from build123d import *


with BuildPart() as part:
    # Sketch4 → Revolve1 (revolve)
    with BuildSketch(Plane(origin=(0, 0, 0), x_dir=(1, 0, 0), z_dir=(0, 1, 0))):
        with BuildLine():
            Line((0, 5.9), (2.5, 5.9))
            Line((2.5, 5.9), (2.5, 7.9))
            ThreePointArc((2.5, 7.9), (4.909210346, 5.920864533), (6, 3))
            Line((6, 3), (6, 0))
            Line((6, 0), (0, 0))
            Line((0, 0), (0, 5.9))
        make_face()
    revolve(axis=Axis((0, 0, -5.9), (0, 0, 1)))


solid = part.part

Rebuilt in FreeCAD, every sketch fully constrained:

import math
import FreeCAD as App
import Part
import Sketcher
Q = App.Units.Quantity

doc = App.newDocument("Part")
body = doc.addObject("PartDesign::Body", "Body")

sketch1 = body.newObject("Sketcher::SketchObject", "Sketch")
sketch1.AttachmentSupport = (doc.getObject("XZ_Plane"), [""])
sketch1.MapMode = "FlatFace"
sketch1.addGeometry([
    Part.LineSegment(App.Vector(2.5, -5.9, 0), App.Vector(0, -5.9, 0)),
    Part.LineSegment(App.Vector(0, -5.9, 0), App.Vector(0, 0, 0)),
    Part.LineSegment(App.Vector(0, 0, 0), App.Vector(6, 0, 0)),
    Part.LineSegment(App.Vector(6, 0, 0), App.Vector(6, -3, 0)),
    Part.ArcOfCircle(Part.Circle(App.Vector(0.02681, -2.433435, 0), App.Vector(0, 0, 1), 6), math.radians(-65.656989), math.radians(-5.418366)),
    Part.LineSegment(App.Vector(2.5, -7.9, 0), App.Vector(2.5, -5.9, 0)),
], False)
sketch1.addConstraint([
    Sketcher.Constraint("Coincident", 0, 2, 1, 1),
    Sketcher.Constraint("Coincident", 1, 2, 2, 1),
    Sketcher.Constraint("Coincident", 2, 2, 3, 1),
    Sketcher.Constraint("Coincident", 3, 2, 4, 2),
    Sketcher.Constraint("Coincident", 4, 1, 5, 1),
    Sketcher.Constraint("Coincident", 5, 2, 0, 1),
    Sketcher.Constraint("Horizontal", 0),
    Sketcher.Constraint("Vertical", 1),
    Sketcher.Constraint("Horizontal", 2),
    Sketcher.Constraint("Vertical", 3),
    Sketcher.Constraint("Vertical", 5),
    Sketcher.Constraint("Coincident", 1, 2, -1, 1),
    Sketcher.Constraint("Radius", 4, Q("6 mm")),
    Sketcher.Constraint("DistanceX", 2, 1, 2, 2, Q("6 mm")),
    Sketcher.Constraint("DistanceY", 3, 2, 3, 1, Q("3 mm")),
    Sketcher.Constraint("DistanceY", 5, 1, 5, 2, Q("2 mm")),
    Sketcher.Constraint("DistanceX", 0, 2, 0, 1, Q("2.5 mm")),
    Sketcher.Constraint("DistanceY", 1, 1, 1, 2, Q("5.9 mm")),
])
revolution = body.newObject("PartDesign::Revolution", "Revolution")
revolution.Profile = sketch1
revolution.ReferenceAxis = (sketch1, ["V_Axis"])
revolution.Angle = 360

doc.recompute()
